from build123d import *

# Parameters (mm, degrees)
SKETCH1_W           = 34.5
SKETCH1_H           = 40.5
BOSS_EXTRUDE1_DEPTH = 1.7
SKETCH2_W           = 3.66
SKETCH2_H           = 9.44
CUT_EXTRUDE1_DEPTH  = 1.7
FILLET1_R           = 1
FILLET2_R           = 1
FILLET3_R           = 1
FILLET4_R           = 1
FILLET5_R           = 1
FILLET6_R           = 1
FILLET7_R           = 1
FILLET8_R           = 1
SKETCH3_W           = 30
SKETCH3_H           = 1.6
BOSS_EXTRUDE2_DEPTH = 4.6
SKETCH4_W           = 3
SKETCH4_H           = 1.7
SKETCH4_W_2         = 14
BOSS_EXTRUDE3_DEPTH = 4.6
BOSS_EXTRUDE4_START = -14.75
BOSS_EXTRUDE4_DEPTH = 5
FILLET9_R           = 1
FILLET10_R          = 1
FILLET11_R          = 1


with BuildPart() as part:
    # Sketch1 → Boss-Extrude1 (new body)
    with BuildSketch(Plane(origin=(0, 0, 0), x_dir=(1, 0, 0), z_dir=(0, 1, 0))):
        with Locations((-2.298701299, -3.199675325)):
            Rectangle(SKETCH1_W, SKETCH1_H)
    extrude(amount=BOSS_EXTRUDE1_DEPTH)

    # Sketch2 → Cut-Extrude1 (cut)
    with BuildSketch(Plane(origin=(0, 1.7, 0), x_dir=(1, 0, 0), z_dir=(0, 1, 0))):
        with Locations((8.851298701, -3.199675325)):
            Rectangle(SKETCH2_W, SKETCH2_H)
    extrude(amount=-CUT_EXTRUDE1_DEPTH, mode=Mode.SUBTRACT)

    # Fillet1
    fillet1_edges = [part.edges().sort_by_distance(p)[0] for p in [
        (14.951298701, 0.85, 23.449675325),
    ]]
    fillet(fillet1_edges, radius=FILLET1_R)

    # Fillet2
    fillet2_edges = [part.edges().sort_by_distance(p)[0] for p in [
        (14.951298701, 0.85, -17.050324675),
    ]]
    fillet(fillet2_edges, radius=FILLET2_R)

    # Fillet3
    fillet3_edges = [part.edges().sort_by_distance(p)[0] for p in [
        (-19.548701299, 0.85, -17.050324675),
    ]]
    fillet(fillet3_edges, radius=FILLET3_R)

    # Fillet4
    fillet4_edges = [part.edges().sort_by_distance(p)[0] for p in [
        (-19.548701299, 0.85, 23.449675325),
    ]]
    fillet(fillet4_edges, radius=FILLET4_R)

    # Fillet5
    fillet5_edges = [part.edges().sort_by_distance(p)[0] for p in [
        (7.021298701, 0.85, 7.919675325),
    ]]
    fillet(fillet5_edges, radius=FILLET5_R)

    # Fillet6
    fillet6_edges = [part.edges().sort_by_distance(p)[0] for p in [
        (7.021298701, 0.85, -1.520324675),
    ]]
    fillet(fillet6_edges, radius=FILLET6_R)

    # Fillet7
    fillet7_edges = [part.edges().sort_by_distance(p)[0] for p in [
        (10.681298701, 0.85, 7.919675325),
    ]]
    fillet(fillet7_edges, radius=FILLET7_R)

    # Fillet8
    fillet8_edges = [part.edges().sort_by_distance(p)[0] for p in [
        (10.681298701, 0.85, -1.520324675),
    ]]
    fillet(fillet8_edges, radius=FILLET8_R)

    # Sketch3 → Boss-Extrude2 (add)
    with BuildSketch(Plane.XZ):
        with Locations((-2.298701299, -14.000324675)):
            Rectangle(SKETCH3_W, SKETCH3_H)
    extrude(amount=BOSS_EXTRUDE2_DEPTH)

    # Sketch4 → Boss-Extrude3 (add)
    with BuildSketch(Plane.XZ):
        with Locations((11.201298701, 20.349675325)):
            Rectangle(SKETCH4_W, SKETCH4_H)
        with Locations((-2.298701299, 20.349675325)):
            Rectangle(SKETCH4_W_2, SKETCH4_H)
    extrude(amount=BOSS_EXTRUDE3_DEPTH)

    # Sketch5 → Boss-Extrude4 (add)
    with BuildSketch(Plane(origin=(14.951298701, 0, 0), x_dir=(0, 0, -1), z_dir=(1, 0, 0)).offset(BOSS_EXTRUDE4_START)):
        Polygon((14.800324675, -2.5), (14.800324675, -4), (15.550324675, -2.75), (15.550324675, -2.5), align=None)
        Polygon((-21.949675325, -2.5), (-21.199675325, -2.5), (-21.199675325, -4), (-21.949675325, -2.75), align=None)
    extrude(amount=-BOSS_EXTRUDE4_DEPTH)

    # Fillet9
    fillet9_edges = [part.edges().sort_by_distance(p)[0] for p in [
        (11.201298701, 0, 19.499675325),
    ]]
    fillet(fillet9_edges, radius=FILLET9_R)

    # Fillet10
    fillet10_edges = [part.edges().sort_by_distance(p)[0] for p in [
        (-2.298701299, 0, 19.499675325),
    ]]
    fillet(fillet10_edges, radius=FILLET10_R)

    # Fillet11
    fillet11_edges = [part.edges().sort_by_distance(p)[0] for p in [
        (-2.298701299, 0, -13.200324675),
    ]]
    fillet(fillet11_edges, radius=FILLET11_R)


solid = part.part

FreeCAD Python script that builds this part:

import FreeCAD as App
import Part
import Sketcher


def edges_at(feature, points):
    """Names of the edges that pass closest to the given points."""
    edges = feature.Shape.Edges
    near = lambda p: min(range(len(edges)), key=lambda i: edges[i].distToShape(Part.Vertex(*p))[0])
    return sorted({f"Edge{near(p) + 1}" for p in points})

doc = App.newDocument("Part")
params = doc.addObject("Spreadsheet::Sheet", "Params")
for row, (alias, value) in enumerate([
    ("sketch1_width", "34.5 mm"),
    ("sketch1_height", "40.5 mm"),
    ("pad1_length", "1.7 mm"),
    ("sketch2_width", "3.66 mm"),
    ("sketch2_height", "9.44 mm"),
    ("pocket1_length", "1.7 mm"),
    ("fillet_radius", "1 mm"),
    ("fillet2_radius", "1 mm"),
    ("fillet3_radius", "1 mm"),
    ("fillet4_radius", "1 mm"),
    ("fillet5_radius", "1 mm"),
    ("fillet6_radius", "1 mm"),
    ("fillet7_radius", "1 mm"),
    ("fillet8_radius", "1 mm"),
    ("sketch3_width", "30 mm"),
    ("sketch3_height", "1.6 mm"),
    ("pad2_length", "4.6 mm"),
    ("sketch4_width", "3 mm"),
    ("sketch4_width2", "14 mm"),
    ("sketch4_height", "1.7 mm"),
    ("pad3_length", "4.6 mm"),
    ("sketch5_width", "1.5 mm"),
    ("sketch5_width2", "0.25 mm"),
    ("sketch5_height", "0.75 mm"),
    ("pad4_length", "5 mm"),
    ("fillet9_radius", "1 mm"),
    ("fillet10_radius", "1 mm"),
    ("fillet11_radius", "1 mm"),
], start=1):
    params.set(f"A{row}", alias)
    params.set(f"B{row}", "=" + value)
    params.setAlias(f"B{row}", alias)

body = doc.addObject("PartDesign::Body", "Body")

# Sketch on XZ plane
sketch1 = doc.addObject("Sketcher::SketchObject", "Sketch")
body.addObject(sketch1)
sketch1.AttachmentSupport = (doc.XZ_Plane, [""])
sketch1.MapMode = "FlatFace"
sketch1.addGeometry([
    Part.LineSegment(App.Vector(-20, -17, 0), App.Vector(-20, 23, 0)),
    Part.LineSegment(App.Vector(-20, 23, 0), App.Vector(15, 23, 0)),
    Part.LineSegment(App.Vector(15, 23, 0), App.Vector(15, -17, 0)),
    Part.LineSegment(App.Vector(15, -17, 0), App.Vector(-20, -17, 0)),
], False)
sketch1.addConstraint([
    Sketcher.Constraint("Coincident", 0, 2, 1, 1),
    Sketcher.Constraint("Coincident", 1, 2, 2, 1),
    Sketcher.Constraint("Coincident", 2, 2, 3, 1),
    Sketcher.Constraint("Coincident", 3, 2, 0, 1),
    Sketcher.Constraint("Vertical", 0),
    Sketcher.Constraint("Horizontal", 1),
    Sketcher.Constraint("Vertical", 2),
    Sketcher.Constraint("Horizontal", 3),
    Sketcher.Constraint("DistanceX", 1, 1, 1, 2, 34.5),
    Sketcher.Constraint("DistanceY", 0, 1, 0, 2, 40.5),
    Sketcher.Constraint("DistanceX", 0, 2, -1, 1, 19.548701),
    Sketcher.Constraint("DistanceY", -1, 1, 0, 2, 23.449675),
])
sketch1.setExpression("Constraints[8]", "Params.sketch1_width")
sketch1.setExpression("Constraints[9]", "Params.sketch1_height")
pad1 = doc.addObject("PartDesign::Pad", "Pad")
body.addObject(pad1)
pad1.Profile = sketch1
pad1.setExpression("Length", "Params.pad1_length")
pad1.Reversed = True

# Sketch on XZ plane
sketch2 = doc.addObject("Sketcher::SketchObject", "Sketch001")
body.addObject(sketch2)
sketch2.AttachmentSupport = (doc.XZ_Plane, [""])
sketch2.MapMode = "FlatFace"
sketch2.AttachmentOffset = App.Placement(App.Vector(0, 0, -1.7), App.Rotation())
sketch2.addGeometry([
    Part.LineSegment(App.Vector(7, -1.5, 0), App.Vector(7, 7.9, 0)),
    Part.LineSegment(App.Vector(7, 7.9, 0), App.Vector(10.7, 7.9, 0)),
    Part.LineSegment(App.Vector(10.7, 7.9, 0), App.Vector(10.7, -1.5, 0)),
    Part.LineSegment(App.Vector(10.7, -1.5, 0), App.Vector(7, -1.5, 0)),
], False)
sketch2.addConstraint([
    Sketcher.Constraint("Coincident", 0, 2, 1, 1),
    Sketcher.Constraint("Coincident", 1, 2, 2, 1),
    Sketcher.Constraint("Coincident", 2, 2, 3, 1),
    Sketcher.Constraint("Coincident", 3, 2, 0, 1),
    Sketcher.Constraint("Vertical", 0),
    Sketcher.Constraint("Horizontal", 1),
    Sketcher.Constraint("Vertical", 2),
    Sketcher.Constraint("Horizontal", 3),
    Sketcher.Constraint("DistanceX", 1, 1, 1, 2, 3.66),
    Sketcher.Constraint("DistanceY", 0, 1, 0, 2, 9.44),
    Sketcher.Constraint("DistanceX", -1, 1, 0, 2, 7.021299),
    Sketcher.Constraint("DistanceY", -1, 1, 0, 2, 7.919675),
])
sketch2.setExpression("Constraints[8]", "Params.sketch2_width")
sketch2.setExpression("Constraints[9]", "Params.sketch2_height")
pocket1 = doc.addObject("PartDesign::Pocket", "Pocket")
body.addObject(pocket1)
pocket1.Profile = sketch2
pocket1.setExpression("Length", "Params.pocket1_length")
pocket1.Reversed = True
doc.recompute()

fillet = doc.addObject("PartDesign::Fillet", "Fillet")
body.addObject(fillet)
fillet.Base = (pocket1, edges_at(pocket1, [(14.951, 0.85, 23.45)]))
fillet.setExpression("Radius", "Params.fillet_radius")
doc.recompute()

fillet2 = doc.addObject("PartDesign::Fillet", "Fillet001")
body.addObject(fillet2)
fillet2.Base = (fillet, edges_at(fillet, [(14.951, 0.85, -17.05)]))
fillet2.setExpression("Radius", "Params.fillet2_radius")
doc.recompute()

fillet3 = doc.addObject("PartDesign::Fillet", "Fillet002")
body.addObject(fillet3)
fillet3.Base = (fillet2, edges_at(fillet2, [(-19.549, 0.85, -17.05)]))
fillet3.setExpression("Radius", "Params.fillet3_radius")
doc.recompute()

fillet4 = doc.addObject("PartDesign::Fillet", "Fillet003")
body.addObject(fillet4)
fillet4.Base = (fillet3, edges_at(fillet3, [(-19.549, 0.85, 23.45)]))
fillet4.setExpression("Radius", "Params.fillet4_radius")
doc.recompute()

fillet5 = doc.addObject("PartDesign::Fillet", "Fillet004")
body.addObject(fillet5)
fillet5.Base = (fillet4, edges_at(fillet4, [(7.021, 0.85, 7.92)]))
fillet5.setExpression("Radius", "Params.fillet5_radius")
doc.recompute()

fillet6 = doc.addObject("PartDesign::Fillet", "Fillet005")
body.addObject(fillet6)
fillet6.Base = (fillet5, edges_at(fillet5, [(7.021, 0.85, -1.52)]))
fillet6.setExpression("Radius", "Params.fillet6_radius")
doc.recompute()

fillet7 = doc.addObject("PartDesign::Fillet", "Fillet006")
body.addObject(fillet7)
fillet7.Base = (fillet6, edges_at(fillet6, [(10.681, 0.85, 7.92)]))
fillet7.setExpression("Radius", "Params.fillet7_radius")
doc.recompute()

fillet8 = doc.addObject("PartDesign::Fillet", "Fillet007")
body.addObject(fillet8)
fillet8.Base = (fillet7, edges_at(fillet7, [(10.681, 0.85, -1.52)]))
fillet8.setExpression("Radius", "Params.fillet8_radius")

# Sketch on XZ plane
sketch3 = doc.addObject("Sketcher::SketchObject", "Sketch002")
body.addObject(sketch3)
sketch3.AttachmentSupport = (doc.XZ_Plane, [""])
sketch3.MapMode = "FlatFace"
sketch3.addGeometry([
    Part.LineSegment(App.Vector(-17.3, -13.2, 0), App.Vector(-17.3, -14.8, 0)),
    Part.LineSegment(App.Vector(-17.3, -14.8, 0), App.Vector(12.7, -14.8, 0)),
    Part.LineSegment(App.Vector(12.7, -14.8, 0), App.Vector(12.7, -13.2, 0)),
    Part.LineSegment(App.Vector(12.7, -13.2, 0), App.Vector(-17.3, -13.2, 0)),
], False)
sketch3.addConstraint([
    Sketcher.Constraint("Coincident", 0, 2, 1, 1),
    Sketcher.Constraint("Coincident", 1, 2, 2, 1),
    Sketcher.Constraint("Coincident", 2, 2, 3, 1),
    Sketcher.Constraint("Coincident", 3, 2, 0, 1),
    Sketcher.Constraint("Vertical", 0),
    Sketcher.Constraint("Horizontal", 1),
    Sketcher.Constraint("Vertical", 2),
    Sketcher.Constraint("Horizontal", 3),
    Sketcher.Constraint("DistanceX", 1, 1, 1, 2, 30.0),
    Sketcher.Constraint("DistanceY", 0, 2, 0, 1, 1.6),
    Sketcher.Constraint("DistanceX", 0, 2, -1, 1, 17.298701),
    Sketcher.Constraint("DistanceY", 0, 2, -1, 1, 14.800325),
])
sketch3.setExpression("Constraints[8]", "Params.sketch3_width")
sketch3.setExpression("Constraints[9]", "Params.sketch3_height")
pad2 = doc.addObject("PartDesign::Pad", "Pad001")
body.addObject(pad2)
pad2.Profile = sketch3
pad2.setExpression("Length", "Params.pad2_length")

# Sketch on XZ plane
sketch4 = doc.addObject("Sketcher::SketchObject", "Sketch003")
body.addObject(sketch4)
sketch4.AttachmentSupport = (doc.XZ_Plane, [""])
sketch4.MapMode = "FlatFace"
sketch4.addGeometry([
    Part.LineSegment(App.Vector(9.7, 21.2, 0), App.Vector(9.7, 19.5, 0)),  # 0
    Part.LineSegment(App.Vector(9.7, 19.5, 0), App.Vector(12.7, 19.5, 0)),  # 1
    Part.LineSegment(App.Vector(12.7, 19.5, 0), App.Vector(12.7, 21.2, 0)),  # 2
    Part.LineSegment(App.Vector(12.7, 21.2, 0), App.Vector(9.7, 21.2, 0)),  # 3
    Part.LineSegment(App.Vector(-9.3, 21.2, 0), App.Vector(-9.3, 19.5, 0)),  # 4
    Part.LineSegment(App.Vector(-9.3, 19.5, 0), App.Vector(4.7, 19.5, 0)),  # 5
    Part.LineSegment(App.Vector(4.7, 19.5, 0), App.Vector(4.7, 21.2, 0)),  # 6
    Part.LineSegment(App.Vector(4.7, 21.2, 0), App.Vector(-9.3, 21.2, 0)),  # 7
], False)
sketch4.addConstraint([
    Sketcher.Constraint("Coincident", 0, 2, 1, 1),
    Sketcher.Constraint("Coincident", 1, 2, 2, 1),
    Sketcher.Constraint("Coincident", 2, 2, 3, 1),
    Sketcher.Constraint("Coincident", 3, 2, 0, 1),
    Sketcher.Constraint("Coincident", 4, 2, 5, 1),
    Sketcher.Constraint("Coincident", 5, 2, 6, 1),
    Sketcher.Constraint("Coincident", 6, 2, 7, 1),
    Sketcher.Constraint("Coincident", 7, 2, 4, 1),
    Sketcher.Constraint("Vertical", 0),
    Sketcher.Constraint("Horizontal", 1),
    Sketcher.Constraint("Vertical", 2),
    Sketcher.Constraint("Horizontal", 3),
    Sketcher.Constraint("Vertical", 4),
    Sketcher.Constraint("Horizontal", 5),
    Sketcher.Constraint("Vertical", 6),
    Sketcher.Constraint("Horizontal", 7),
    Sketcher.Constraint("Horizontal", 1, 2, 4, 2),
    Sketcher.Constraint("Horizontal", 3, 2, 6, 2),
    Sketcher.Constraint("DistanceX", 1, 1, 1, 2, 3.0),
    Sketcher.Constraint("DistanceX", 5, 1, 5, 2, 14.0),
    Sketcher.Constraint("DistanceY", 0, 2, 0, 1, 1.7),
    Sketcher.Constraint("DistanceX", 4, 2, 0, 2, 19.0),
    Sketcher.Constraint("DistanceX", -1, 1, 0, 2, 9.701299),
    Sketcher.Constraint("DistanceY", -1, 1, 0, 2, 19.499675),
])
sketch4.setExpression("Constraints[18]", "Params.sketch4_width")
sketch4.setExpression("Constraints[19]", "Params.sketch4_width2")
sketch4.setExpression("Constraints[20]", "Params.sketch4_height")
pad3 = doc.addObject("PartDesign::Pad", "Pad002")
body.addObject(pad3)
pad3.Profile = sketch4
pad3.setExpression("Length", "Params.pad3_length")

# Sketch on YZ plane
sketch5 = doc.addObject("Sketcher::SketchObject", "Sketch004")
body.addObject(sketch5)
sketch5.AttachmentSupport = (doc.YZ_Plane, [""])
sketch5.MapMode = "FlatFace"
sketch5.AttachmentOffset = App.Placement(App.Vector(0, 0, 0.201299), App.Rotation())
sketch5.addGeometry([
    Part.LineSegment(App.Vector(-2.5, -14.8, 0), App.Vector(-4, -14.8, 0)),  # 0
    Part.LineSegment(App.Vector(-4, -14.8, 0), App.Vector(-2.75, -15.55, 0)),  # 1
    Part.LineSegment(App.Vector(-2.75, -15.55, 0), App.Vector(-2.5, -15.55, 0)),  # 2
    Part.LineSegment(App.Vector(-2.5, -15.55, 0), App.Vector(-2.5, -14.8, 0)),  # 3
    Part.LineSegment(App.Vector(-2.5, 21.2, 0), App.Vector(-2.5, 21.95, 0)),  # 4
    Part.LineSegment(App.Vector(-2.5, 21.95, 0), App.Vector(-2.75, 21.95, 0)),  # 5
    Part.LineSegment(App.Vector(-2.75, 21.95, 0), App.Vector(-4, 21.2, 0)),  # 6
    Part.LineSegment(App.Vector(-4, 21.2, 0), App.Vector(-2.5, 21.2, 0)),  # 7
], False)
sketch5.addConstraint([
    Sketcher.Constraint("Coincident", 0, 2, 1, 1),
    Sketcher.Constraint("Coincident", 1, 2, 2, 1),
    Sketcher.Constraint("Coincident", 2, 2, 3, 1),
    Sketcher.Constraint("Coincident", 3, 2, 0, 1),
    Sketcher.Constraint("Coincident", 4, 2, 5, 1),
    Sketcher.Constraint("Coincident", 5, 2, 6, 1),
    Sketcher.Constraint("Coincident", 6, 2, 7, 1),
    Sketcher.Constraint("Coincident", 7, 2, 4, 1),
    Sketcher.Constraint("Horizontal", 0),
    Sketcher.Constraint("Horizontal", 2),
    Sketcher.Constraint("Vertical", 3),
    Sketcher.Constraint("Vertical", 4),
    Sketcher.Constraint("Horizontal", 5),
    Sketcher.Constraint("Horizontal", 7),
    Sketcher.Constraint("Vertical", 3, 2, 4, 2),
    Sketcher.Constraint("Vertical", 1, 2, 5, 2),
    Sketcher.Constraint("Vertical", 0, 2, 6, 2),
    Sketcher.Constraint("Equal", 3, 4),
    Sketcher.Constraint("DistanceX", 0, 2, 0, 1, 1.5),
    Sketcher.Constraint("DistanceX", 0, 2, -1, 1, 4.0),
    Sketcher.Constraint("DistanceY", 0, 2, 6, 2, 36.0),
    Sketcher.Constraint("DistanceX", 2, 1, 2, 2, 0.25),
    Sketcher.Constraint("DistanceY", 3, 1, 3, 2, 0.75),
    Sketcher.Constraint("DistanceY", 0, 2, -1, 1, 14.800325),
])
sketch5.setExpression("Constraints[18]", "Params.sketch5_width")
sketch5.setExpression("Constraints[21]", "Params.sketch5_width2")
sketch5.setExpression("Constraints[22]", "Params.sketch5_height")
pad4 = doc.addObject("PartDesign::Pad", "Pad003")
body.addObject(pad4)
pad4.Profile = sketch5
pad4.setExpression("Length", "Params.pad4_length")
pad4.Reversed = True
doc.recompute()

fillet9 = doc.addObject("PartDesign::Fillet", "Fillet008")
body.addObject(fillet9)
fillet9.Base = (pad4, edges_at(pad4, [(11.201, 0, 19.5)]))
fillet9.setExpression("Radius", "Params.fillet9_radius")
doc.recompute()

fillet10 = doc.addObject("PartDesign::Fillet", "Fillet009")
body.addObject(fillet10)
fillet10.Base = (fillet9, edges_at(fillet9, [(-2.299, 0, 19.5)]))
fillet10.setExpression("Radius", "Params.fillet10_radius")
doc.recompute()

fillet11 = doc.addObject("PartDesign::Fillet", "Fillet010")
body.addObject(fillet11)
fillet11.Base = (fillet10, edges_at(fillet10, [(-2.299, 0, -13.2)]))
fillet11.setExpression("Radius", "Params.fillet11_radius")

doc.recompute()
